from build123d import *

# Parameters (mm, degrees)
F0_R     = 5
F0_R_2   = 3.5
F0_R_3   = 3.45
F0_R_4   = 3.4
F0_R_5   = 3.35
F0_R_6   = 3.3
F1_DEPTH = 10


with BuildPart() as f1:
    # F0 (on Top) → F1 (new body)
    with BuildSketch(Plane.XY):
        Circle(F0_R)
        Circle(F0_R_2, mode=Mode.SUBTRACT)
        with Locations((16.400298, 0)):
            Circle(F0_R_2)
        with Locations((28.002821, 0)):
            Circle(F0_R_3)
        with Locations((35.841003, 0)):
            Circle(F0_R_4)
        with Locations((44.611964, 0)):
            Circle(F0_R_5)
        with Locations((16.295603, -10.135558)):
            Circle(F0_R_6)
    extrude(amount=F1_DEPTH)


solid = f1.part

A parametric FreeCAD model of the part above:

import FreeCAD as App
import Part
import Sketcher
Q = App.Units.Quantity

doc = App.newDocument("Part")
body = doc.addObject("PartDesign::Body", "Body")
body.AllowCompound = True

# Sketch on XY plane
sketch1 = doc.addObject("Sketcher::SketchObject", "Sketch")
body.addObject(sketch1)
sketch1.AttachmentSupport = (doc.XY_Plane, [""])
sketch1.MapMode = "FlatFace"
sketch1.addGeometry(Part.Circle(App.Vector(0, 0, 0), App.Vector(0, 0, 1), 5), False)
sketch1.addGeometry(Part.Circle(App.Vector(0, 0, 0), App.Vector(0, 0, 1), 3.5), False)
sketch1.addGeometry(Part.Circle(App.Vector(16.400298, 0, 0), App.Vector(0, 0, 1), 3.5), False)
sketch1.addGeometry(Part.Circle(App.Vector(28.002821, 0, 0), App.Vector(0, 0, 1), 3.45), False)
sketch1.addGeometry(Part.Circle(App.Vector(35.841003, 0, 0), App.Vector(0, 0, 1), 3.4), False)
sketch1.addGeometry(Part.Circle(App.Vector(44.611964, 0, 0), App.Vector(0, 0, 1), 3.35), False)
sketch1.addGeometry(Part.Circle(App.Vector(16.295603, -10.135558, 0), App.Vector(0, 0, 1), 3.3), False)
sketch1.addConstraint(Sketcher.Constraint("Coincident", 0, 3, -1, 1))
sketch1.addConstraint(Sketcher.Constraint("Coincident", 1, 3, -1, 1))
sketch1.addConstraint(Sketcher.Constraint("Equal", 1, 2))
sketch1.addConstraint(Sketcher.Constraint("PointOnObject", 2, 3, -1))
sketch1.addConstraint(Sketcher.Constraint("PointOnObject", 3, 3, -1))
sketch1.addConstraint(Sketcher.Constraint("PointOnObject", 4, 3, -1))
sketch1.addConstraint(Sketcher.Constraint("PointOnObject", 5, 3, -1))
sketch1.addConstraint(Sketcher.Constraint("Diameter", 0, Q("10 mm")))
sketch1.addConstraint(Sketcher.Constraint("Diameter", 1, Q("7 mm")))
sketch1.addConstraint(Sketcher.Constraint("Diameter", 3, Q("6.9 mm")))
sketch1.addConstraint(Sketcher.Constraint("Diameter", 4, Q("6.8 mm")))
sketch1.addConstraint(Sketcher.Constraint("Diameter", 5, Q("6.7 mm")))
sketch1.addConstraint(Sketcher.Constraint("Diameter", 6, Q("6.6 mm")))
sketch1.addConstraint(Sketcher.Constraint("DistanceX", 6, 3, 4, 3, Q("19.5454 mm")))
sketch1.addConstraint(Sketcher.Constraint("DistanceX", -1, 1, 3, 3, Q("28.002821 mm")))
sketch1.addConstraint(Sketcher.Constraint("DistanceX", 3, 3, 4, 3, Q("7.838182 mm")))
sketch1.addConstraint(Sketcher.Constraint("DistanceX", 4, 3, 5, 3, Q("8.770961 mm")))
sketch1.addConstraint(Sketcher.Constraint("DistanceX", -1, 1, 2, 3, Q("16.400298 mm")))
sketch1.addConstraint(Sketcher.Constraint("DistanceY", 6, 3, -1, 1, Q("10.135558 mm")))
pad1 = doc.addObject("PartDesign::Pad", "Pad")
body.addObject(pad1)
pad1.Profile = sketch1
pad1.Length = 10

doc.recompute()
